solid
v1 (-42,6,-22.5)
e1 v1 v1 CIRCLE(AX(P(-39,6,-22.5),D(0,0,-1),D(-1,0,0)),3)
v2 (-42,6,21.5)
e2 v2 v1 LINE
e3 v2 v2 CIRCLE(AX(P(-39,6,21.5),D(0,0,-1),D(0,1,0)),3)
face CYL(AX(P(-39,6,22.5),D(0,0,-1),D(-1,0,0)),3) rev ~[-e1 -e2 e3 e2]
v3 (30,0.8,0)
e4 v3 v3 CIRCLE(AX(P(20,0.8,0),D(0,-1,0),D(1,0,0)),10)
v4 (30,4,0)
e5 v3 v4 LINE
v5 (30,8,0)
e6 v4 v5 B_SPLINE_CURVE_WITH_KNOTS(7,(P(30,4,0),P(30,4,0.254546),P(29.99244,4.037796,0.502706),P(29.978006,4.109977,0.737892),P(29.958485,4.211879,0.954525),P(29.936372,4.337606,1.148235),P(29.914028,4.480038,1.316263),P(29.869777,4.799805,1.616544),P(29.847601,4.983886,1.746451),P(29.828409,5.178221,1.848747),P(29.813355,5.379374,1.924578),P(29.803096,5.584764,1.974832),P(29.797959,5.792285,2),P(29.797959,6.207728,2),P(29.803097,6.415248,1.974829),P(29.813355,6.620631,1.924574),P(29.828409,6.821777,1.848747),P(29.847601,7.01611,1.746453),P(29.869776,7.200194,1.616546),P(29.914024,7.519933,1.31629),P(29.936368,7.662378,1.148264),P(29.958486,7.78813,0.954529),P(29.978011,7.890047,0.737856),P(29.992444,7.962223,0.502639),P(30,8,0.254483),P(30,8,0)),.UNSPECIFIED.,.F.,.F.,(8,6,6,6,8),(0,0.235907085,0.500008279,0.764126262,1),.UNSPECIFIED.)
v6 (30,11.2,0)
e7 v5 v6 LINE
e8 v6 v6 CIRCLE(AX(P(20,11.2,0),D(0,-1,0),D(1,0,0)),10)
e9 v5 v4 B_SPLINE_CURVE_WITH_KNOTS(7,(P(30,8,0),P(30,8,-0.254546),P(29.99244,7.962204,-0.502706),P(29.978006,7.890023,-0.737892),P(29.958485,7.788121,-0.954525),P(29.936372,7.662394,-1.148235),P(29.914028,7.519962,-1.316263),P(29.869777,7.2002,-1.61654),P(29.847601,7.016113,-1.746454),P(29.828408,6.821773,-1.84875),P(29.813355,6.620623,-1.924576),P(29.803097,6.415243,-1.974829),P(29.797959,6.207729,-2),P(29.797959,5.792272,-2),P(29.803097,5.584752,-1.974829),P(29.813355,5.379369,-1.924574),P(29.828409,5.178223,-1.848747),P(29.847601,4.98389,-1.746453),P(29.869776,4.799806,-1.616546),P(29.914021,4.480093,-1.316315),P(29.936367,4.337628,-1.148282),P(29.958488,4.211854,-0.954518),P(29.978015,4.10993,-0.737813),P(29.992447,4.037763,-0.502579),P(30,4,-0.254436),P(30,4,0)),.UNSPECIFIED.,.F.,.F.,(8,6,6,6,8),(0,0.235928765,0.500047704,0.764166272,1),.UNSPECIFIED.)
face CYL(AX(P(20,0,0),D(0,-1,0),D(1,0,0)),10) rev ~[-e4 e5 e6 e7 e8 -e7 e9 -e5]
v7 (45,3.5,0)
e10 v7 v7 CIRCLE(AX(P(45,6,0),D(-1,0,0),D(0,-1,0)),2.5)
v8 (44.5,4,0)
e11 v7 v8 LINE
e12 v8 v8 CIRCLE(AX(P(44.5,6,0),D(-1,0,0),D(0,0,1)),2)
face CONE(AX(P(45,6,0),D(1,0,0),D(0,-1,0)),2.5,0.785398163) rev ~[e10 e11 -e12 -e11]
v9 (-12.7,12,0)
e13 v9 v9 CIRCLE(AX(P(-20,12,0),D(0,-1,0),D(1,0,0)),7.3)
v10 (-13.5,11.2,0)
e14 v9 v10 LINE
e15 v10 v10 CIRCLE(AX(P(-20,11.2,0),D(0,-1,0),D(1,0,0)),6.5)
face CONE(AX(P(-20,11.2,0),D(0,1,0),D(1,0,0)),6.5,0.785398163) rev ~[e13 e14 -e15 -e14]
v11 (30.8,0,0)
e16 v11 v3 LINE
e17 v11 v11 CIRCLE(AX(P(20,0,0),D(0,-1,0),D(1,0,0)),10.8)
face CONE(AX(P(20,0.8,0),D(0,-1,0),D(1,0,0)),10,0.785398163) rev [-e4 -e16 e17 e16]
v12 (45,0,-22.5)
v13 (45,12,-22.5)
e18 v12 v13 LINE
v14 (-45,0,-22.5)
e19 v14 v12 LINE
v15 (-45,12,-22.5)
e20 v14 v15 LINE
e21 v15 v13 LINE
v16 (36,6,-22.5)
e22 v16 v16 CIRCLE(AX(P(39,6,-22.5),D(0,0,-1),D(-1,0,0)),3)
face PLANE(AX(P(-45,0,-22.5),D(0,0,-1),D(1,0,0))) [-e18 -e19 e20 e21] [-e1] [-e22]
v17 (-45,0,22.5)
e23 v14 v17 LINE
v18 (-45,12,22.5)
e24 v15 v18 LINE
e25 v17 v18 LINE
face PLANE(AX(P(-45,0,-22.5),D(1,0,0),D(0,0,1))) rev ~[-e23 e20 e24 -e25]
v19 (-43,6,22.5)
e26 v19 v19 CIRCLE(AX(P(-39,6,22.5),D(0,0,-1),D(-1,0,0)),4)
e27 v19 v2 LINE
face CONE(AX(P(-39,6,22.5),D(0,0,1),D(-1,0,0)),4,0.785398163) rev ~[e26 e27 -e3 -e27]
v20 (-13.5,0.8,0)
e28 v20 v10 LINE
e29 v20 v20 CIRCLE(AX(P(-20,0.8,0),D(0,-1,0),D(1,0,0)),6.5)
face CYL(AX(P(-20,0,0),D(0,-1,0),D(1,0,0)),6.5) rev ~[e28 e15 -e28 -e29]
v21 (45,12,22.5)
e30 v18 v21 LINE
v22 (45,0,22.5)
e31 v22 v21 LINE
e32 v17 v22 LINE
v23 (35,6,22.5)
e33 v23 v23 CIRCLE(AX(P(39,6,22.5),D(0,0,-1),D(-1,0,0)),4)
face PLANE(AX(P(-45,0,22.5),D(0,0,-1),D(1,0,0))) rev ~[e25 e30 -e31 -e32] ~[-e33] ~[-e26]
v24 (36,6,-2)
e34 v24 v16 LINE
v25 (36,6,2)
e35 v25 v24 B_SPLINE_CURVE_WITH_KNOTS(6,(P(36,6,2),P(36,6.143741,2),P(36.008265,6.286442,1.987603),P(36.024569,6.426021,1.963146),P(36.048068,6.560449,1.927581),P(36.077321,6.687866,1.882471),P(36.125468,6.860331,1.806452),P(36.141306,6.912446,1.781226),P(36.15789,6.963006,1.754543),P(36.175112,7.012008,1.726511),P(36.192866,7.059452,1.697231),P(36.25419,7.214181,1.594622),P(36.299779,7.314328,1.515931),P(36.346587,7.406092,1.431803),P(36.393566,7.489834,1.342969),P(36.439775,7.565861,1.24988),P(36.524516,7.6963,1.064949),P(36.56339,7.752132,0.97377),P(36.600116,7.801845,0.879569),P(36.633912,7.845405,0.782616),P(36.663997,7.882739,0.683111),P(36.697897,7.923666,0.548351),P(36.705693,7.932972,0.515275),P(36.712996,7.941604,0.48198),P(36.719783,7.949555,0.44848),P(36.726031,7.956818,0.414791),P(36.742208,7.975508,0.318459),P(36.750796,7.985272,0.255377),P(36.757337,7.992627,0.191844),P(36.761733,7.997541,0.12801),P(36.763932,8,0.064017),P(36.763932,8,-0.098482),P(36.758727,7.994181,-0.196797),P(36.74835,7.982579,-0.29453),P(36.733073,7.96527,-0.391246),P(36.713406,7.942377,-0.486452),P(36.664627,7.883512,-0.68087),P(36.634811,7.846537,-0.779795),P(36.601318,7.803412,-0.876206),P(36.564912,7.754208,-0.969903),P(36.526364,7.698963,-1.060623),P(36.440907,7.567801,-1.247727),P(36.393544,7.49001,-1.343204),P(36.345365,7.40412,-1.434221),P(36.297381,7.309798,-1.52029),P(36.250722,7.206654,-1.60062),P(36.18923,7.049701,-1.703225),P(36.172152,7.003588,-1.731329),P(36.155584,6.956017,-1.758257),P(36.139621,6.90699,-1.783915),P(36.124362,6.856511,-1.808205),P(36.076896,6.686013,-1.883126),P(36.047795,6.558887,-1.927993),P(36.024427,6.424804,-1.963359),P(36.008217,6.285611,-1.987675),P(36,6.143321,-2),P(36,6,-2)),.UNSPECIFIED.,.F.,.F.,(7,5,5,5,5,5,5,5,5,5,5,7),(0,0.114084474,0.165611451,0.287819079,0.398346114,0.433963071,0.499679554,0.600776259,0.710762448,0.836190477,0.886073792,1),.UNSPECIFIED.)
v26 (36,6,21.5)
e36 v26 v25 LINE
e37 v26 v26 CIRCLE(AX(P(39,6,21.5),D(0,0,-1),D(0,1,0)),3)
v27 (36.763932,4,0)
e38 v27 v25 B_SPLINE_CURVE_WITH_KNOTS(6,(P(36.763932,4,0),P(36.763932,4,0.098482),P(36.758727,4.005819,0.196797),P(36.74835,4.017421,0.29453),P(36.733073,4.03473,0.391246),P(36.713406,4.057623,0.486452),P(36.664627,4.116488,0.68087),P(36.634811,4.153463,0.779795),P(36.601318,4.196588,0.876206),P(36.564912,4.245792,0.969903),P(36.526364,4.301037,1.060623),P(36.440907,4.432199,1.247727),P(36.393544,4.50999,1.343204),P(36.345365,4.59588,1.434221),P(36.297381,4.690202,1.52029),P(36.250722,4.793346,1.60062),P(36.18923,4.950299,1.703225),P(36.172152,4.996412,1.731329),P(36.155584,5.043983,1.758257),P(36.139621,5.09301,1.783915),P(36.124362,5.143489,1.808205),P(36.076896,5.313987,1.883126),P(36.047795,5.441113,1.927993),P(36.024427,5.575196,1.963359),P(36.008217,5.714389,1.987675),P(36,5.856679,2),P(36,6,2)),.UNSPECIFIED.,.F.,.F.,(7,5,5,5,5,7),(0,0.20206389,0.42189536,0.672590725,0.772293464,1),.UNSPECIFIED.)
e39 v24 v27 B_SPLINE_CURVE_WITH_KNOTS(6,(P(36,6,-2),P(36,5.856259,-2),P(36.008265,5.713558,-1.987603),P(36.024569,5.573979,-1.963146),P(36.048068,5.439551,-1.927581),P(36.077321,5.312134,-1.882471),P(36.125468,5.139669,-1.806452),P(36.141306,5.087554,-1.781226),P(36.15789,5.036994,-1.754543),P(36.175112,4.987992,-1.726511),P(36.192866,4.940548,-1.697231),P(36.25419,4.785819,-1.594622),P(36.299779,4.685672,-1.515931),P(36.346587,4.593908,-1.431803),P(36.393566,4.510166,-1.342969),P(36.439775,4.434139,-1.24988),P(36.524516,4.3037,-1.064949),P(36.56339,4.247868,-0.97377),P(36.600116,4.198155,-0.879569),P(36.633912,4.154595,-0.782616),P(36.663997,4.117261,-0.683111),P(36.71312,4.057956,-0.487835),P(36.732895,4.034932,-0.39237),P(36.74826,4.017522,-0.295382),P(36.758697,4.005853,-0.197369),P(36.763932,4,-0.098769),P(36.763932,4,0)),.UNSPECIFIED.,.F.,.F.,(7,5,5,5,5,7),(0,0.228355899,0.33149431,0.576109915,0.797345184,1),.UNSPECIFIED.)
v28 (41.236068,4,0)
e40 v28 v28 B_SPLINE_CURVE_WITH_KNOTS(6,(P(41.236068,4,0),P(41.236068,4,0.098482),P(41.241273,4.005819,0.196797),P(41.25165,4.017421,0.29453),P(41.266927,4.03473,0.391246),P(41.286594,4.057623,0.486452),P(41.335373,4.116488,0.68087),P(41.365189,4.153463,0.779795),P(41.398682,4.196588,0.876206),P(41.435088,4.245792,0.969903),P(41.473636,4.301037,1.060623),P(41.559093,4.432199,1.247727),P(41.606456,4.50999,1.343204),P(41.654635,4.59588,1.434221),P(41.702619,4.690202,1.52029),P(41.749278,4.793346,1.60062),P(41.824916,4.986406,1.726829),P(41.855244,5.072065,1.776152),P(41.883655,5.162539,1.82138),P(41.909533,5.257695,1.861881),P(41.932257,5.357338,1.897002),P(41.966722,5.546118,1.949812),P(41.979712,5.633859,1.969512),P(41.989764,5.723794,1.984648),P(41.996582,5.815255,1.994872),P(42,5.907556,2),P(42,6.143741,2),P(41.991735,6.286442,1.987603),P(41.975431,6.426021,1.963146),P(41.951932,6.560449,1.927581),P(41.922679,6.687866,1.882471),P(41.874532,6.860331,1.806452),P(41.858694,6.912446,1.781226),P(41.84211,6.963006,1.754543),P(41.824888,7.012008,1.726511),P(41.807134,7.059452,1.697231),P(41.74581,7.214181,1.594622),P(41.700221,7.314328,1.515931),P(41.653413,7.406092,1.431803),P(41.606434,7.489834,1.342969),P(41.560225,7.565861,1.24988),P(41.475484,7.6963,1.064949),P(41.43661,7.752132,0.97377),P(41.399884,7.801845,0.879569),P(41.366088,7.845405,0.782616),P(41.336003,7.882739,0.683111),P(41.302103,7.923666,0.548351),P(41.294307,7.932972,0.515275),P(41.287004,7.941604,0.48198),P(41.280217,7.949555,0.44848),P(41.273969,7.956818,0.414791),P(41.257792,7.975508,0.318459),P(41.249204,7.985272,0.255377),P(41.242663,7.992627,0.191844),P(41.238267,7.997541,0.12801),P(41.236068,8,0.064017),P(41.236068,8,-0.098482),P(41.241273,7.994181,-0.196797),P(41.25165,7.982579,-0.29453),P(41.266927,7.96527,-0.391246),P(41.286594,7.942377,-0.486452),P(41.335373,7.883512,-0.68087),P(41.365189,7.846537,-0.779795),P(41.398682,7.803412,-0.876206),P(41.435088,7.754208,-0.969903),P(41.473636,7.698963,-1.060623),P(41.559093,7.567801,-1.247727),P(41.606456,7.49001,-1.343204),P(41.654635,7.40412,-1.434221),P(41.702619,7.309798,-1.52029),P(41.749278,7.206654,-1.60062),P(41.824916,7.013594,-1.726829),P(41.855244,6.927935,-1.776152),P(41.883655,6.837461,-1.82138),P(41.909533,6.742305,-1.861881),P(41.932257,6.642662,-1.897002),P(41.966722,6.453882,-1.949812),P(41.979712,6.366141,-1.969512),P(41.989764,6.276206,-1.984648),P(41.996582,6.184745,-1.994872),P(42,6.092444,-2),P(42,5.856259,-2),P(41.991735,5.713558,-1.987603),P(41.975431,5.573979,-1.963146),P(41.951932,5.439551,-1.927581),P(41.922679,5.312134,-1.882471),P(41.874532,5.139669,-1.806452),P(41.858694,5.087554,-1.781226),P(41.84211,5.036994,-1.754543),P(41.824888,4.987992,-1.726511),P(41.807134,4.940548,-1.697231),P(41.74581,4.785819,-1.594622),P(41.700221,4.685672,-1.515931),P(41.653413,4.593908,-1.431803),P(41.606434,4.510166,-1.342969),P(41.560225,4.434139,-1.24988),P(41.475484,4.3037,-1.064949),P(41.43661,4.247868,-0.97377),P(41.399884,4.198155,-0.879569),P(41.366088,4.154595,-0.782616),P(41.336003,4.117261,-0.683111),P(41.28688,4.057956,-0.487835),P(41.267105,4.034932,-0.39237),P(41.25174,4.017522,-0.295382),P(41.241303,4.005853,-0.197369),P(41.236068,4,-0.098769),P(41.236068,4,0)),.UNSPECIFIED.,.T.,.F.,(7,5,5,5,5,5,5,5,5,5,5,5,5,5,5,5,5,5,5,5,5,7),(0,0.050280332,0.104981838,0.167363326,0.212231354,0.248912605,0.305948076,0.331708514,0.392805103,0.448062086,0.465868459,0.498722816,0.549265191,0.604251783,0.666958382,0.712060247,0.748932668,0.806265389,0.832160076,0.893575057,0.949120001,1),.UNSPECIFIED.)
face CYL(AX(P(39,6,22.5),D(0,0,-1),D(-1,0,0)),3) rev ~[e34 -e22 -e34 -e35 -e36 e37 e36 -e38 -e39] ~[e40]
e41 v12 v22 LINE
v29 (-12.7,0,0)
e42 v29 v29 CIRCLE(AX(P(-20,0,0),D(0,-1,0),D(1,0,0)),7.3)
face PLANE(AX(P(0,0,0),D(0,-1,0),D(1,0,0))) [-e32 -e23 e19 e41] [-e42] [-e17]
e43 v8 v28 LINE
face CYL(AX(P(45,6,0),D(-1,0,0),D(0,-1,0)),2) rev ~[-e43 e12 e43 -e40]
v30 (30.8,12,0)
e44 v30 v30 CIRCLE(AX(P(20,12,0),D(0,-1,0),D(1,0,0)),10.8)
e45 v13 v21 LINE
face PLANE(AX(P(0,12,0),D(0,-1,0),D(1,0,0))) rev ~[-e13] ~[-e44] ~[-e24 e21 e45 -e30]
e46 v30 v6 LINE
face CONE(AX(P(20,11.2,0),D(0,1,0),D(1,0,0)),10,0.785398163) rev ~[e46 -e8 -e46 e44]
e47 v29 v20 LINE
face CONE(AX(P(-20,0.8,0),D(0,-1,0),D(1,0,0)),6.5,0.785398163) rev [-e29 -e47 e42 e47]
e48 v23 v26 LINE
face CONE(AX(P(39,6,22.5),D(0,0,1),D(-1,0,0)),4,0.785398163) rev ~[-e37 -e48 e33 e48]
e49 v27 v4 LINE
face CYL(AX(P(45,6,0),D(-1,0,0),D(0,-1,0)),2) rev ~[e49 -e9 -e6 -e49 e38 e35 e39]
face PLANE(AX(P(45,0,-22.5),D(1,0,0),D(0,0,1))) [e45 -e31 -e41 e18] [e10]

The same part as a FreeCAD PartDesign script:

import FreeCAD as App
import Part
import Sketcher
from FreeCAD import Vector
Q = App.Units.Quantity


def edges_at(feature, points):
    """Names of the edges that pass closest to the given points."""
    edges = feature.Shape.Edges
    near = lambda p: min(range(len(edges)), key=lambda i: edges[i].distToShape(Part.Vertex(*p))[0])
    return sorted({f"Edge{near(p) + 1}" for p in points})

doc = App.newDocument("Part")
body = doc.addObject("PartDesign::Body", "Body")

# Sketch on XZ plane
sketch1 = doc.addObject("Sketcher::SketchObject", "Sketch")
body.addObject(sketch1)
sketch1.AttachmentSupport = (doc.XZ_Plane, [""])
sketch1.MapMode = "FlatFace"
sketch1.addGeometry(Part.LineSegment(Vector(-45, 22, 0), Vector(-45, -22, 0)), False)
sketch1.addGeometry(Part.LineSegment(Vector(-45, -22, 0), Vector(45, -22, 0)), False)
sketch1.addGeometry(Part.LineSegment(Vector(45, -22, 0), Vector(45, 22, 0)), False)
sketch1.addGeometry(Part.LineSegment(Vector(45, 22, 0), Vector(-45, 22, 0)), False)
sketch1.addConstraint(Sketcher.Constraint("Coincident", 0, 2, 1, 1))
sketch1.addConstraint(Sketcher.Constraint("Coincident", 1, 2, 2, 1))
sketch1.addConstraint(Sketcher.Constraint("Coincident", 2, 2, 3, 1))
sketch1.addConstraint(Sketcher.Constraint("Coincident", 3, 2, 0, 1))
sketch1.addConstraint(Sketcher.Constraint("Vertical", 0))
sketch1.addConstraint(Sketcher.Constraint("Horizontal", 1))
sketch1.addConstraint(Sketcher.Constraint("Vertical", 2))
sketch1.addConstraint(Sketcher.Constraint("Horizontal", 3))
sketch1.addConstraint(Sketcher.Constraint("Symmetric", 0, 2, 2, 2, -1, 1))
sketch1.addConstraint(Sketcher.Constraint("DistanceX", 1, 1, 1, 2, Q("90 mm")))
sketch1.addConstraint(Sketcher.Constraint("DistanceY", 0, 2, 0, 1, Q("45 mm")))
pad1 = doc.addObject("PartDesign::Pad", "Pad")
body.addObject(pad1)
pad1.Profile = sketch1
pad1.Length = 12
pad1.Reversed = True

# Sketch on XZ plane
sketch2 = doc.addObject("Sketcher::SketchObject", "Sketch001")
body.addObject(sketch2)
sketch2.AttachmentSupport = (doc.XZ_Plane, [""])
sketch2.MapMode = "FlatFace"
sketch2.addGeometry(Part.Circle(Vector(-20, 0, 0), Vector(0, 0, 1), 6), False)
sketch2.addGeometry(Part.Circle(Vector(20, 0, 0), Vector(0, 0, 1), 10), False)
sketch2.addConstraint(Sketcher.Constraint("Symmetric", 0, 3, 1, 3, -1, 1))
sketch2.addConstraint(Sketcher.Constraint("PointOnObject", 0, 3, -1))
sketch2.addConstraint(Sketcher.Constraint("Diameter", 0, Q("13 mm")))
sketch2.addConstraint(Sketcher.Constraint("Diameter", 1, Q("20 mm")))
sketch2.addConstraint(Sketcher.Constraint("DistanceX", 0, 3, -1, 1, Q("20 mm")))
pocket1 = doc.addObject("PartDesign::Pocket", "Pocket")
body.addObject(pocket1)
pocket1.Profile = sketch2
pocket1.Length = 25
doc.recompute()

chamfer = doc.addObject("PartDesign::Chamfer", "Chamfer")
body.addObject(chamfer)
chamfer.Base = (pocket1, edges_at(pocket1, [
    (-26.5, 0, 0),
    (-26.5, 12, 0),
    (10, 0, 0),
    (10, 12, 0),
]))
chamfer.Size = 0.8

# Sketch on XY plane
sketch3 = doc.addObject("Sketcher::SketchObject", "Sketch002")
body.addObject(sketch3)
sketch3.AttachmentSupport = (doc.XY_Plane, [""])
sketch3.MapMode = "FlatFace"
sketch3.AttachmentOffset = App.Placement(Vector(0, 0, 22.5), App.Rotation())
sketch3.addGeometry(Part.Circle(Vector(-39, 6, 0), Vector(0, 0, 1), 3), False)
sketch3.addGeometry(Part.Circle(Vector(39, 6, 0), Vector(0, 0, 1), 3), False)
sketch3.addConstraint(Sketcher.Constraint("Equal", 0, 1))
sketch3.addConstraint(Sketcher.Constraint("Symmetric", 0, 3, 1, 3, -2))
sketch3.addConstraint(Sketcher.Constraint("Diameter", 0, Q("6 mm")))
sketch3.addConstraint(Sketcher.Constraint("DistanceX", 0, 3, -1, 1, Q("39 mm")))
sketch3.addConstraint(Sketcher.Constraint("DistanceY", -1, 1, 0, 3, Q("6 mm")))
doc.recompute()
hole = doc.addObject("PartDesign::Hole", "Hole")
body.addObject(hole)
hole.Profile = sketch3
hole.ThreadType = "None"
hole.Diameter = 6
hole.DepthType = "ThroughAll"
hole.HoleCutType = "Countersink"
hole.HoleCutDiameter = 8
hole.HoleCutCountersinkAngle = 90

# Sketch on YZ plane
sketch4 = doc.addObject("Sketcher::SketchObject", "Sketch003")
body.addObject(sketch4)
sketch4.AttachmentSupport = (doc.YZ_Plane, [""])
sketch4.MapMode = "FlatFace"
sketch4.AttachmentOffset = App.Placement(Vector(0, 0, 45), App.Rotation())
sketch4.addGeometry(Part.Circle(Vector(6, 0, 0), Vector(0, 0, 1), 2), False)
sketch4.addConstraint(Sketcher.Constraint("PointOnObject", 0, 3, -1))
sketch4.addConstraint(Sketcher.Constraint("Diameter", 0, Q("4 mm")))
sketch4.addConstraint(Sketcher.Constraint("DistanceX", -1, 1, 0, 3, Q("6 mm")))
doc.recompute()
hole2 = doc.addObject("PartDesign::Hole", "Hole001")
body.addObject(hole2)
hole2.Profile = sketch4
hole2.ThreadType = "None"
hole2.Diameter = 4
hole2.DepthType = "Dimension"
hole2.Depth = 30
hole2.DrillPoint = "Angled"
hole2.DrillPointAngle = 118
hole2.HoleCutType = "Countersink"
hole2.HoleCutDiameter = 5
hole2.HoleCutCountersinkAngle = 90

doc.recompute()
